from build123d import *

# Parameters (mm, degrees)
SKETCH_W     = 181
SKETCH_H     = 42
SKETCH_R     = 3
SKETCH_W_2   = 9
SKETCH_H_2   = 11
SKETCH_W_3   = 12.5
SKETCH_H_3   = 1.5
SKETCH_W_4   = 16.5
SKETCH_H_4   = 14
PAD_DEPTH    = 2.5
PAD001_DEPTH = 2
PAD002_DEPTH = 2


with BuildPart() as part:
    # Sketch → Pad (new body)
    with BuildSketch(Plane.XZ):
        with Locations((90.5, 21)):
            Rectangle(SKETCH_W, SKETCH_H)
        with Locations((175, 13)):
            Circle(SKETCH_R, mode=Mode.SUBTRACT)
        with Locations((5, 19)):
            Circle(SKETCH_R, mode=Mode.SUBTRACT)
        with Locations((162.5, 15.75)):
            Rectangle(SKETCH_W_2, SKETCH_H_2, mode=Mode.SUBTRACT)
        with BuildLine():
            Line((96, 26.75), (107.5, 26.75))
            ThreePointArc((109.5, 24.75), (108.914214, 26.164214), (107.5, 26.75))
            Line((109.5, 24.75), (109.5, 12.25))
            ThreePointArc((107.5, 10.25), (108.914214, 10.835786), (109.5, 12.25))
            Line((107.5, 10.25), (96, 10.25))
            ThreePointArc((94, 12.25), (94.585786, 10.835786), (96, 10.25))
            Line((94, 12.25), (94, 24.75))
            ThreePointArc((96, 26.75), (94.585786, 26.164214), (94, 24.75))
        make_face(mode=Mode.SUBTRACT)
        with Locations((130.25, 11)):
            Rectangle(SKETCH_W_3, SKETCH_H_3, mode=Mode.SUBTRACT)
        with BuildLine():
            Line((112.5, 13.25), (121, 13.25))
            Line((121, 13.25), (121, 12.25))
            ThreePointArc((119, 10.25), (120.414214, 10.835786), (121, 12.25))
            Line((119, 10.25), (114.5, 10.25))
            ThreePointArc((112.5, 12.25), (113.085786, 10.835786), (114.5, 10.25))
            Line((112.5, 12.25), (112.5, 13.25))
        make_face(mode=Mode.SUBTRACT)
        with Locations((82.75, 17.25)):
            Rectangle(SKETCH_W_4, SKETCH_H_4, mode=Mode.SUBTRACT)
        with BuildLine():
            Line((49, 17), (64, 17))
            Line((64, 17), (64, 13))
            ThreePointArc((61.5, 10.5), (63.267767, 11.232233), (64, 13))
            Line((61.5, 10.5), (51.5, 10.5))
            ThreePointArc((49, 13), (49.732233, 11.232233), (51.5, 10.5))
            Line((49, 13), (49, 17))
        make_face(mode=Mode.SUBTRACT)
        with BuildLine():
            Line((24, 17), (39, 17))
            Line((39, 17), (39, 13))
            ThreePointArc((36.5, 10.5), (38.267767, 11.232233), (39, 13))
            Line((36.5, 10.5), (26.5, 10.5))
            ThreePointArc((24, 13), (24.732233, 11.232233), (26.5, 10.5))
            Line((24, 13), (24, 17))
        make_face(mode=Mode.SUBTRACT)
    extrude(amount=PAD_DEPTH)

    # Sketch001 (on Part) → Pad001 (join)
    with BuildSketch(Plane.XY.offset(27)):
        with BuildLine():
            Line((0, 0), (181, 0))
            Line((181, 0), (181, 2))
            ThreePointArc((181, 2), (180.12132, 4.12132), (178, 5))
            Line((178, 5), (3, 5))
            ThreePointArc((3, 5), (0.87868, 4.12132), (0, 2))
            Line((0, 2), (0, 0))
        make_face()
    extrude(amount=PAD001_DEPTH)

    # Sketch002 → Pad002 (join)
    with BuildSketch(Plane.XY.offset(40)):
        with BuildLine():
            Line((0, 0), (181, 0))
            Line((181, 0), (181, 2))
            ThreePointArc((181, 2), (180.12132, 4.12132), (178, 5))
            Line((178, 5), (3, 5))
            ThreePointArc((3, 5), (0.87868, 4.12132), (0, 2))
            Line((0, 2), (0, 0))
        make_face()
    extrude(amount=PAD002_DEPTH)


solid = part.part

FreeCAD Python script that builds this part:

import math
import FreeCAD as App
import Part
import Sketcher
Q = App.Units.Quantity

doc = App.newDocument("Part")
body = doc.addObject("PartDesign::Body", "Body")

# Sketch on XZ plane
sketch1 = body.newObject("Sketcher::SketchObject", "Sketch")
sketch1.AttachmentSupport = (doc.getObject("XZ_Plane"), [""])
sketch1.MapMode = "FlatFace"
sketch1.addGeometry([
    Part.LineSegment(App.Vector(0, 42, 0), App.Vector(0, 0, 0)),  # 0
    Part.LineSegment(App.Vector(0, 0, 0), App.Vector(181, 0, 0)),  # 1
    Part.LineSegment(App.Vector(181, 0, 0), App.Vector(181, 42, 0)),  # 2
    Part.LineSegment(App.Vector(181, 42, 0), App.Vector(0, 42, 0)),  # 3
    Part.LineSegment(App.Vector(24, 13, 0), App.Vector(24, 17, 0)),  # 4
    Part.LineSegment(App.Vector(24, 17, 0), App.Vector(39, 17, 0)),  # 5
    Part.LineSegment(App.Vector(39, 17, 0), App.Vector(39, 13, 0)),  # 6
    Part.ArcOfCircle(Part.Circle(App.Vector(36.5, 13, 0), App.Vector(0, 0, 1), 2.5), math.radians(-90), math.radians(0)),  # 7
    Part.LineSegment(App.Vector(36.5, 10.5, 0), App.Vector(26.5, 10.5, 0)),  # 8
    Part.ArcOfCircle(Part.Circle(App.Vector(26.5, 13, 0), App.Vector(0, 0, 1), 2.5), math.radians(180), math.radians(270)),  # 9
    Part.LineSegment(App.Vector(49, 13, 0), App.Vector(49, 17, 0)),  # 10
    Part.LineSegment(App.Vector(49, 17, 0), App.Vector(64, 17, 0)),  # 11
    Part.LineSegment(App.Vector(64, 17, 0), App.Vector(64, 13, 0)),  # 12
    Part.ArcOfCircle(Part.Circle(App.Vector(61.5, 13, 0), App.Vector(0, 0, 1), 2.5), math.radians(-90), math.radians(0)),  # 13
    Part.LineSegment(App.Vector(61.5, 10.5, 0), App.Vector(51.5, 10.5, 0)),  # 14
    Part.ArcOfCircle(Part.Circle(App.Vector(51.5, 13, 0), App.Vector(0, 0, 1), 2.5), math.radians(180), math.radians(270)),  # 15
    Part.LineSegment(App.Vector(91, 10.2, 0), App.Vector(74.5, 10.2, 0)),  # 16
    Part.LineSegment(App.Vector(74.5, 10.2, 0), App.Vector(74.5, 24.2, 0)),  # 17
    Part.LineSegment(App.Vector(74.5, 24.2, 0), App.Vector(91, 24.2, 0)),  # 18
    Part.LineSegment(App.Vector(91, 24.2, 0), App.Vector(91, 10.2, 0)),  # 19
    Part.LineSegment(App.Vector(136.5, 10.2, 0), App.Vector(124, 10.2, 0)),  # 20
    Part.LineSegment(App.Vector(124, 10.2, 0), App.Vector(124, 11.8, 0)),  # 21
    Part.LineSegment(App.Vector(124, 11.8, 0), App.Vector(136.5, 11.8, 0)),  # 22
    Part.LineSegment(App.Vector(136.5, 11.8, 0), App.Vector(136.5, 10.2, 0)),  # 23
    Part.LineSegment(App.Vector(112.5, 12.2, 0), App.Vector(112.5, 13.2, 0)),  # 24
    Part.LineSegment(App.Vector(112.5, 13.2, 0), App.Vector(121, 13.2, 0)),  # 25
    Part.LineSegment(App.Vector(121, 13.2, 0), App.Vector(121, 12.2, 0)),  # 26
    Part.ArcOfCircle(Part.Circle(App.Vector(119, 12.2, 0), App.Vector(0, 0, 1), 2), math.radians(-90), math.radians(0)),  # 27
    Part.LineSegment(App.Vector(119, 10.2, 0), App.Vector(114.5, 10.2, 0)),  # 28
    Part.ArcOfCircle(Part.Circle(App.Vector(114.5, 12.2, 0), App.Vector(0, 0, 1), 2), math.radians(180), math.radians(270)),  # 29
    Part.Circle(App.Vector(175, 13, 0), App.Vector(0, 0, 1), 3),  # 30
    Part.LineSegment(App.Vector(167, 10.2, 0), App.Vector(158, 10.2, 0)),  # 31
    Part.LineSegment(App.Vector(158, 10.2, 0), App.Vector(158, 21.2, 0)),  # 32
    Part.LineSegment(App.Vector(158, 21.2, 0), App.Vector(167, 21.2, 0)),  # 33
    Part.LineSegment(App.Vector(167, 21.2, 0), App.Vector(167, 10.2, 0)),  # 34
    Part.Circle(App.Vector(5, 19, 0), App.Vector(0, 0, 1), 3),  # 35
    Part.ArcOfCircle(Part.Circle(App.Vector(96, 24.8, 0), App.Vector(0, 0, 1), 2), math.radians(90), math.radians(180)),  # 36
    Part.LineSegment(App.Vector(96, 26.8, 0), App.Vector(107.5, 26.8, 0)),  # 37
    Part.ArcOfCircle(Part.Circle(App.Vector(107.5, 24.8, 0), App.Vector(0, 0, 1), 2), math.radians(0), math.radians(90)),  # 38
    Part.LineSegment(App.Vector(109.5, 24.8, 0), App.Vector(109.5, 12.2, 0)),  # 39
    Part.ArcOfCircle(Part.Circle(App.Vector(107.5, 12.2, 0), App.Vector(0, 0, 1), 2), math.radians(-90), math.radians(0)),  # 40
    Part.LineSegment(App.Vector(107.5, 10.2, 0), App.Vector(96, 10.2, 0)),  # 41
    Part.ArcOfCircle(Part.Circle(App.Vector(96, 12.2, 0), App.Vector(0, 0, 1), 2), math.radians(180), math.radians(270)),  # 42
    Part.LineSegment(App.Vector(94, 12.2, 0), App.Vector(94, 24.8, 0)),  # 43
], False)
sketch1.addConstraint([
    Sketcher.Constraint("Coincident", 0, 2, 1, 1),
    Sketcher.Constraint("Coincident", 1, 2, 2, 1),
    Sketcher.Constraint("Coincident", 2, 2, 3, 1),
    Sketcher.Constraint("Coincident", 3, 2, 0, 1),
    Sketcher.Constraint("Coincident", 4, 2, 5, 1),
    Sketcher.Constraint("Coincident", 5, 2, 6, 1),
    Sketcher.Constraint("Tangent", 6, 2, 7, 2),
    Sketcher.Constraint("Tangent", 7, 1, 8, 1),
    Sketcher.Constraint("Tangent", 8, 2, 9, 2),
    Sketcher.Constraint("Tangent", 9, 1, 4, 1),
    Sketcher.Constraint("Coincident", 10, 2, 11, 1),
    Sketcher.Constraint("Coincident", 11, 2, 12, 1),
    Sketcher.Constraint("Tangent", 12, 2, 13, 2),
    Sketcher.Constraint("Tangent", 13, 1, 14, 1),
    Sketcher.Constraint("Tangent", 14, 2, 15, 2),
    Sketcher.Constraint("Tangent", 15, 1, 10, 1),
    Sketcher.Constraint("Coincident", 16, 2, 17, 1),
    Sketcher.Constraint("Coincident", 17, 2, 18, 1),
    Sketcher.Constraint("Coincident", 18, 2, 19, 1),
    Sketcher.Constraint("Coincident", 19, 2, 16, 1),
    Sketcher.Constraint("Coincident", 20, 2, 21, 1),
    Sketcher.Constraint("Coincident", 21, 2, 22, 1),
    Sketcher.Constraint("Coincident", 22, 2, 23, 1),
    Sketcher.Constraint("Coincident", 23, 2, 20, 1),
    Sketcher.Constraint("Coincident", 24, 2, 25, 1),
    Sketcher.Constraint("Coincident", 25, 2, 26, 1),
    Sketcher.Constraint("Tangent", 26, 2, 27, 2),
    Sketcher.Constraint("Tangent", 27, 1, 28, 1),
    Sketcher.Constraint("Tangent", 28, 2, 29, 2),
    Sketcher.Constraint("Tangent", 29, 1, 24, 1),
    Sketcher.Constraint("Coincident", 31, 2, 32, 1),
    Sketcher.Constraint("Coincident", 32, 2, 33, 1),
    Sketcher.Constraint("Coincident", 33, 2, 34, 1),
    Sketcher.Constraint("Coincident", 34, 2, 31, 1),
    Sketcher.Constraint("Tangent", 36, 1, 37, 1),
    Sketcher.Constraint("Tangent", 37, 2, 38, 2),
    Sketcher.Constraint("Tangent", 38, 1, 39, 1),
    Sketcher.Constraint("Tangent", 39, 2, 40, 2),
    Sketcher.Constraint("Tangent", 40, 1, 41, 1),
    Sketcher.Constraint("Tangent", 41, 2, 42, 2),
    Sketcher.Constraint("Tangent", 42, 1, 43, 1),
    Sketcher.Constraint("Tangent", 43, 2, 36, 2),
    Sketcher.Constraint("Vertical", 0),
    Sketcher.Constraint("Horizontal", 1),
    Sketcher.Constraint("Vertical", 2),
    Sketcher.Constraint("Horizontal", 3),
    Sketcher.Constraint("Vertical", 4),
    Sketcher.Constraint("Horizontal", 5),
    Sketcher.Constraint("Vertical", 6),
    Sketcher.Constraint("Horizontal", 8),
    Sketcher.Constraint("Vertical", 10),
    Sketcher.Constraint("Horizontal", 11),
    Sketcher.Constraint("Vertical", 12),
    Sketcher.Constraint("Horizontal", 14),
    Sketcher.Constraint("Horizontal", 16),
    Sketcher.Constraint("Vertical", 17),
    Sketcher.Constraint("Horizontal", 18),
    Sketcher.Constraint("Vertical", 19),
    Sketcher.Constraint("Horizontal", 20),
    Sketcher.Constraint("Vertical", 21),
    Sketcher.Constraint("Horizontal", 22),
    Sketcher.Constraint("Vertical", 23),
    Sketcher.Constraint("Vertical", 24),
    Sketcher.Constraint("Horizontal", 25),
    Sketcher.Constraint("Vertical", 26),
    Sketcher.Constraint("Horizontal", 28),
    Sketcher.Constraint("Horizontal", 31),
    Sketcher.Constraint("Vertical", 32),
    Sketcher.Constraint("Horizontal", 33),
    Sketcher.Constraint("Vertical", 34),
    Sketcher.Constraint("Horizontal", 37),
    Sketcher.Constraint("Vertical", 39),
    Sketcher.Constraint("Horizontal", 41),
    Sketcher.Constraint("Vertical", 43),
    Sketcher.Constraint("Coincident", 0, 2, -1, 1),
    Sketcher.Constraint("Equal", 7, 9),
    Sketcher.Constraint("Equal", 9, 13),
    Sketcher.Constraint("Equal", 13, 15),
    Sketcher.Constraint("Equal", 27, 29),
    Sketcher.Constraint("Equal", 30, 35),
    Sketcher.Constraint("Equal", 29, 36),
    Sketcher.Constraint("Equal", 36, 38),
    Sketcher.Constraint("Equal", 38, 40),
    Sketcher.Constraint("Equal", 40, 42),
    Sketcher.Constraint("Horizontal", 9, 3, 13, 3),
    Sketcher.Constraint("Horizontal", 15, 3, 30, 3),
    Sketcher.Constraint("Horizontal", 29, 3, 40, 3),
    Sketcher.Constraint("Horizontal", 5, 2, 10, 2),
    Sketcher.Constraint("Horizontal", 19, 2, 20, 2),
    Sketcher.Constraint("Horizontal", 23, 2, 27, 1),
    Sketcher.Constraint("Horizontal", 28, 2, 31, 2),
    Sketcher.Constraint("Equal", 5, 11),
    Sketcher.Constraint("Equal", 22, 39),
    Sketcher.Constraint("Diameter", 30, Q("6 mm")),
    Sketcher.Constraint("Radius", 27, Q("1.999999 mm")),
    Sketcher.Constraint("Radius", 7, Q("2.5 mm")),
    Sketcher.Constraint("DistanceX", 1, 1, 1, 2, Q("181 mm")),
    Sketcher.Constraint("DistanceX", 5, 1, 5, 2, Q("15 mm")),
    Sketcher.Constraint("DistanceX", 31, 2, 31, 1, Q("9 mm")),
    Sketcher.Constraint("DistanceY", 0, 2, 0, 1, Q("42 mm")),
    Sketcher.Constraint("DistanceY", 4, 1, 4, 2, Q("4 mm")),
    Sketcher.Constraint("DistanceY", 17, 1, 17, 2, Q("14 mm")),
    Sketcher.Constraint("DistanceY", 24, 1, 24, 2, Q("1 mm")),
    Sketcher.Constraint("DistanceY", 32, 1, 32, 2, Q("11 mm")),
    Sketcher.Constraint("DistanceX", 16, 2, 16, 1, Q("16.5 mm")),
    Sketcher.Constraint("DistanceX", 20, 2, 20, 1, Q("12.5 mm")),
    Sketcher.Constraint("DistanceX", 25, 1, 25, 2, Q("8.5 mm")),
    Sketcher.Constraint("DistanceX", 37, 1, 37, 2, Q("11.5 mm")),
    Sketcher.Constraint("DistanceY", 21, 1, 21, 2, Q("1.5 mm")),
    Sketcher.Constraint("DistanceY", -1, 1, 7, 3, Q("13 mm")),
    Sketcher.Constraint("DistanceX", -1, 1, 27, 3, Q("119.000001 mm")),
    Sketcher.Constraint("DistanceX", -1, 1, 30, 3, Q("175 mm")),
    Sketcher.Constraint("DistanceX", -1, 1, 35, 3, Q("5 mm")),
    Sketcher.Constraint("DistanceY", -1, 1, 35, 3, Q("19 mm")),
    Sketcher.Constraint("DistanceX", -1, 1, 36, 3, Q("95.999999 mm")),
    Sketcher.Constraint("DistanceX", -1, 1, 4, 2, Q("24 mm")),
    Sketcher.Constraint("DistanceX", -1, 1, 10, 2, Q("49 mm")),
    Sketcher.Constraint("DistanceX", -1, 1, 18, 2, Q("91 mm")),
    Sketcher.Constraint("DistanceX", -1, 1, 20, 2, Q("124 mm")),
    Sketcher.Constraint("DistanceX", -1, 1, 31, 2, Q("158 mm")),
    Sketcher.Constraint("DistanceY", -1, 1, 27, 3, Q("12.249999 mm")),
])
pad1 = body.newObject("PartDesign::Pad", "Pad")
pad1.Profile = sketch1
pad1.Length = 2.5

# Sketch on XY plane
sketch2 = body.newObject("Sketcher::SketchObject", "Sketch001")
sketch2.AttachmentSupport = (doc.getObject("XY_Plane"), [""])
sketch2.MapMode = "FlatFace"
sketch2.AttachmentOffset = App.Placement(App.Vector(0, 0, 27), App.Rotation())
sketch2.addGeometry([
    Part.LineSegment(App.Vector(0, 0, 0), App.Vector(181, 0, 0)),  # 0
    Part.LineSegment(App.Vector(181, 0, 0), App.Vector(181, 2, 0)),  # 1
    Part.ArcOfCircle(Part.Circle(App.Vector(178, 2, 0), App.Vector(0, 0, 1), 3), math.radians(0), math.radians(90)),  # 2
    Part.LineSegment(App.Vector(178, 5, 0), App.Vector(3, 5, 0)),  # 3
    Part.ArcOfCircle(Part.Circle(App.Vector(3, 2, 0), App.Vector(0, 0, 1), 3), math.radians(90), math.radians(180)),  # 4
    Part.LineSegment(App.Vector(0, 2, 0), App.Vector(0, 0, 0)),  # 5
], False)
sketch2.addConstraint([
    Sketcher.Constraint("Coincident", 0, 2, 1, 1),
    Sketcher.Constraint("Tangent", 1, 2, 2, 1),
    Sketcher.Constraint("Tangent", 2, 2, 3, 1),
    Sketcher.Constraint("Tangent", 3, 2, 4, 1),
    Sketcher.Constraint("Tangent", 4, 2, 5, 1),
    Sketcher.Constraint("Coincident", 5, 2, 0, 1),
    Sketcher.Constraint("Horizontal", 0),
    Sketcher.Constraint("Vertical", 1),
    Sketcher.Constraint("Horizontal", 3),
    Sketcher.Constraint("Vertical", 5),
    Sketcher.Constraint("Coincident", 5, 2, -1, 1),
    Sketcher.Constraint("Equal", 2, 4),
    Sketcher.Constraint("Radius", 2, Q("3.000001 mm")),
    Sketcher.Constraint("DistanceX", 0, 1, 0, 2, Q("181 mm")),
    Sketcher.Constraint("DistanceY", 1, 1, 1, 2, Q("2 mm")),
])
pad2 = body.newObject("PartDesign::Pad", "Pad001")
pad2.Profile = sketch2
pad2.Length = 2

# Sketch on XY plane
sketch3 = body.newObject("Sketcher::SketchObject", "Sketch002")
sketch3.AttachmentSupport = (doc.getObject("XY_Plane"), [""])
sketch3.MapMode = "FlatFace"
sketch3.AttachmentOffset = App.Placement(App.Vector(0, 0, 40), App.Rotation())
sketch3.addGeometry([
    Part.LineSegment(App.Vector(0, 0, 0), App.Vector(181, 0, 0)),  # 0
    Part.LineSegment(App.Vector(181, 0, 0), App.Vector(181, 2, 0)),  # 1
    Part.ArcOfCircle(Part.Circle(App.Vector(178, 2, 0), App.Vector(0, 0, 1), 3), math.radians(0), math.radians(90)),  # 2
    Part.LineSegment(App.Vector(178, 5, 0), App.Vector(3, 5, 0)),  # 3
    Part.ArcOfCircle(Part.Circle(App.Vector(3, 2, 0), App.Vector(0, 0, 1), 3), math.radians(90), math.radians(180)),  # 4
    Part.LineSegment(App.Vector(0, 2, 0), App.Vector(0, 0, 0)),  # 5
], False)
sketch3.addConstraint([
    Sketcher.Constraint("Coincident", 0, 2, 1, 1),
    Sketcher.Constraint("Tangent", 1, 2, 2, 1),
    Sketcher.Constraint("Tangent", 2, 2, 3, 1),
    Sketcher.Constraint("Tangent", 3, 2, 4, 1),
    Sketcher.Constraint("Tangent", 4, 2, 5, 1),
    Sketcher.Constraint("Coincident", 5, 2, 0, 1),
    Sketcher.Constraint("Horizontal", 0),
    Sketcher.Constraint("Vertical", 1),
    Sketcher.Constraint("Horizontal", 3),
    Sketcher.Constraint("Vertical", 5),
    Sketcher.Constraint("Coincident", 5, 2, -1, 1),
    Sketcher.Constraint("Equal", 2, 4),
    Sketcher.Constraint("Radius", 2, Q("3.000001 mm")),
    Sketcher.Constraint("DistanceX", 0, 1, 0, 2, Q("181 mm")),
    Sketcher.Constraint("DistanceY", 1, 1, 1, 2, Q("2 mm")),
])
pad3 = body.newObject("PartDesign::Pad", "Pad002")
pad3.Profile = sketch3
pad3.Length = 2

doc.recompute()
